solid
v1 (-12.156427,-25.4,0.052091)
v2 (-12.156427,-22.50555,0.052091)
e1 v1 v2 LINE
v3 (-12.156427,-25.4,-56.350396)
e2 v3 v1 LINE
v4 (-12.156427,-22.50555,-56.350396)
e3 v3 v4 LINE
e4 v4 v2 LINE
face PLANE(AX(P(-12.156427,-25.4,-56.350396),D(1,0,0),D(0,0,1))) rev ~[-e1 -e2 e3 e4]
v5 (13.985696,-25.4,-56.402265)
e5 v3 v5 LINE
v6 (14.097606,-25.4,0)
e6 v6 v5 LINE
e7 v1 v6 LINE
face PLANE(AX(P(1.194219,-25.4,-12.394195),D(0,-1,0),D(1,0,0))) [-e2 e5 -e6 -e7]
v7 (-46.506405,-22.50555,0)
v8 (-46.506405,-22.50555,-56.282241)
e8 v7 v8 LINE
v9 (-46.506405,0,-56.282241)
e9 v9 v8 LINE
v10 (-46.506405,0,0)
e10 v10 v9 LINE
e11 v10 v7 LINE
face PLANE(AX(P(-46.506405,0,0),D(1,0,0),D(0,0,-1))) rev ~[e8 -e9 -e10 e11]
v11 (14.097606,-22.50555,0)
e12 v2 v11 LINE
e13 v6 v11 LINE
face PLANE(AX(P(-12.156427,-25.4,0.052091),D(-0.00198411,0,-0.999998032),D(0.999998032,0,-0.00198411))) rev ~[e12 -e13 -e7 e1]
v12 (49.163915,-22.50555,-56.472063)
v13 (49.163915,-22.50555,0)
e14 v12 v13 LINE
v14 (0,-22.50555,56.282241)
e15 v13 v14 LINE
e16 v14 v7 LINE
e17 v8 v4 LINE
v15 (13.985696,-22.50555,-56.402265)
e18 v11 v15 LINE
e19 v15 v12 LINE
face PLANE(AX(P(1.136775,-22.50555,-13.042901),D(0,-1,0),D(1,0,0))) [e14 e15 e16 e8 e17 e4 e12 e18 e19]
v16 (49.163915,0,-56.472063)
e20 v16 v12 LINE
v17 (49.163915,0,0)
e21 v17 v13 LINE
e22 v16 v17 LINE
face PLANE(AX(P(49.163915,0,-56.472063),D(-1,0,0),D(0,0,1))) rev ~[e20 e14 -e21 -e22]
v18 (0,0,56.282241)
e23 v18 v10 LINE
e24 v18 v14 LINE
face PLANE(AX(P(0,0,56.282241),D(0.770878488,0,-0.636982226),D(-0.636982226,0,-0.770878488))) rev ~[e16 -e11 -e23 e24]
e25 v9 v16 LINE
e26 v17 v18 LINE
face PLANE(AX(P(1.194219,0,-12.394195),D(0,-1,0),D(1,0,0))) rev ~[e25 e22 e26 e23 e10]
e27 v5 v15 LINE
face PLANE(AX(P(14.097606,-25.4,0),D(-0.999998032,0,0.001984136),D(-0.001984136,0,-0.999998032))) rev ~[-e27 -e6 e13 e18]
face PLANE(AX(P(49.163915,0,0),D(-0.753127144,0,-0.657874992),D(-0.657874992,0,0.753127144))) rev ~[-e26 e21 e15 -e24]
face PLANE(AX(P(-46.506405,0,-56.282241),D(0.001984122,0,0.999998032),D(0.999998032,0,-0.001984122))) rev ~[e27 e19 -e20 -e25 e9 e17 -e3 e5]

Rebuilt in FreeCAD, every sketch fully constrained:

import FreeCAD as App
import Part
import Sketcher
from FreeCAD import Vector
Q = App.Units.Quantity

doc = App.newDocument("Part")
body = doc.addObject("PartDesign::Body", "Body")

sketch1 = body.newObject("Sketcher::SketchObject", "Sketch")
sketch1.AttachmentSupport = (doc.getObject("XZ_Plane"), [""])
sketch1.MapMode = "FlatFace"
sketch1.addGeometry([
    Part.LineSegment(Vector(49, 0, 0), Vector(0, 56, 0)),
    Part.LineSegment(Vector(0, 56, 0), Vector(-47, 0, 0)),
    Part.LineSegment(Vector(-47, 0, 0), Vector(-47, -56, 0)),
    Part.LineSegment(Vector(-47, -56, 0), Vector(49, -56, 0)),
    Part.LineSegment(Vector(49, -56, 0), Vector(49, 0, 0)),
], False)
sketch1.addConstraint([
    Sketcher.Constraint("Coincident", 0, 2, 1, 1),
    Sketcher.Constraint("Coincident", 1, 2, 2, 1),
    Sketcher.Constraint("Coincident", 2, 2, 3, 1),
    Sketcher.Constraint("Coincident", 3, 2, 4, 1),
    Sketcher.Constraint("Coincident", 4, 2, 0, 1),
    Sketcher.Constraint("Vertical", 2),
    Sketcher.Constraint("Vertical", 4),
    Sketcher.Constraint("PointOnObject", 0, 2, -2),
    Sketcher.Constraint("PointOnObject", 1, 2, -1),
    Sketcher.Constraint("PointOnObject", 4, 2, -1),
    Sketcher.Constraint("DistanceY", 2, 2, 2, 1, Q("56.282241 mm")),
    Sketcher.Constraint("Distance", 3, Q("95.670508 mm")),
    Sketcher.Constraint("DistanceY", 4, 1, 4, 2, Q("56.472063 mm")),
    Sketcher.Constraint("DistanceY", -1, 1, 0, 2, Q("56.282241 mm")),
    Sketcher.Constraint("Distance", 0, Q("74.731394 mm")),
])
pad1 = body.newObject("PartDesign::Pad", "Pad")
pad1.Profile = sketch1
pad1.Length = Q("1 in")

sketch2 = body.newObject("Sketcher::SketchObject", "Sketch001")
sketch2.AttachmentSupport = (doc.getObject("XZ_Plane"), [""])
sketch2.MapMode = "FlatFace"
sketch2.AttachmentOffset = App.Placement(Vector(0, 0, 1 * 25.4), App.Rotation())
sketch2.addGeometry([
    Part.LineSegment(Vector(14, 0, 0), Vector(14, -56, 0)),
    Part.LineSegment(Vector(14, -56, 0), Vector(49, -56, 0)),
    Part.LineSegment(Vector(49, -56, 0), Vector(49, 0, 0)),
    Part.LineSegment(Vector(49, 0, 0), Vector(0, 56, 0)),
    Part.LineSegment(Vector(0, 56, 0), Vector(-47, 0, 0)),
    Part.LineSegment(Vector(-47, 0, 0), Vector(-47, -56, 0)),
    Part.LineSegment(Vector(-47, -56, 0), Vector(-12, -56, 0)),
    Part.LineSegment(Vector(-12, -56, 0), Vector(-12, 0, 0)),
    Part.LineSegment(Vector(-12, 0, 0), Vector(14, 0, 0)),
], False)
sketch2.addConstraint([
    Sketcher.Constraint("Coincident", 0, 2, 1, 1),
    Sketcher.Constraint("Coincident", 1, 2, 2, 1),
    Sketcher.Constraint("Coincident", 2, 2, 3, 1),
    Sketcher.Constraint("Coincident", 3, 2, 4, 1),
    Sketcher.Constraint("Coincident", 4, 2, 5, 1),
    Sketcher.Constraint("Coincident", 5, 2, 6, 1),
    Sketcher.Constraint("Coincident", 6, 2, 7, 1),
    Sketcher.Constraint("Coincident", 7, 2, 8, 1),
    Sketcher.Constraint("Coincident", 8, 2, 0, 1),
    Sketcher.Constraint("Vertical", 2),
    Sketcher.Constraint("Vertical", 5),
    Sketcher.Constraint("Vertical", 7),
    Sketcher.Constraint("PointOnObject", 2, 2, -1),
    Sketcher.Constraint("PointOnObject", 3, 2, -2),
    Sketcher.Constraint("PointOnObject", 4, 2, -1),
    Sketcher.Constraint("PointOnObject", 8, 2, -1),
    Sketcher.Constraint("Perpendicular", 0, 1),
    Sketcher.Constraint("Parallel", 1, 6),
    Sketcher.Constraint("Parallel", 6, 8),
    Sketcher.Constraint("DistanceY", 5, 2, 5, 1, Q("56.282241 mm")),
    Sketcher.Constraint("DistanceX", 4, 2, 0, 2, Q("60.492101 mm")),
    Sketcher.Constraint("Distance", 1, Q("35.178288 mm")),
    Sketcher.Constraint("DistanceY", 2, 1, 2, 2, Q("56.472063 mm")),
    Sketcher.Constraint("DistanceY", 7, 1, 7, 2, Q("56.402487 mm")),
    Sketcher.Constraint("DistanceY", -1, 1, 3, 2, Q("56.282241 mm")),
    Sketcher.Constraint("Distance", 3, Q("74.731394 mm")),
    Sketcher.Constraint("Distance", 6, Q("34.350046 mm")),
])
pocket1 = body.newObject("PartDesign::Pocket", "Pocket")
pocket1.Profile = sketch2
pocket1.Length = 2.89445

doc.recompute()
